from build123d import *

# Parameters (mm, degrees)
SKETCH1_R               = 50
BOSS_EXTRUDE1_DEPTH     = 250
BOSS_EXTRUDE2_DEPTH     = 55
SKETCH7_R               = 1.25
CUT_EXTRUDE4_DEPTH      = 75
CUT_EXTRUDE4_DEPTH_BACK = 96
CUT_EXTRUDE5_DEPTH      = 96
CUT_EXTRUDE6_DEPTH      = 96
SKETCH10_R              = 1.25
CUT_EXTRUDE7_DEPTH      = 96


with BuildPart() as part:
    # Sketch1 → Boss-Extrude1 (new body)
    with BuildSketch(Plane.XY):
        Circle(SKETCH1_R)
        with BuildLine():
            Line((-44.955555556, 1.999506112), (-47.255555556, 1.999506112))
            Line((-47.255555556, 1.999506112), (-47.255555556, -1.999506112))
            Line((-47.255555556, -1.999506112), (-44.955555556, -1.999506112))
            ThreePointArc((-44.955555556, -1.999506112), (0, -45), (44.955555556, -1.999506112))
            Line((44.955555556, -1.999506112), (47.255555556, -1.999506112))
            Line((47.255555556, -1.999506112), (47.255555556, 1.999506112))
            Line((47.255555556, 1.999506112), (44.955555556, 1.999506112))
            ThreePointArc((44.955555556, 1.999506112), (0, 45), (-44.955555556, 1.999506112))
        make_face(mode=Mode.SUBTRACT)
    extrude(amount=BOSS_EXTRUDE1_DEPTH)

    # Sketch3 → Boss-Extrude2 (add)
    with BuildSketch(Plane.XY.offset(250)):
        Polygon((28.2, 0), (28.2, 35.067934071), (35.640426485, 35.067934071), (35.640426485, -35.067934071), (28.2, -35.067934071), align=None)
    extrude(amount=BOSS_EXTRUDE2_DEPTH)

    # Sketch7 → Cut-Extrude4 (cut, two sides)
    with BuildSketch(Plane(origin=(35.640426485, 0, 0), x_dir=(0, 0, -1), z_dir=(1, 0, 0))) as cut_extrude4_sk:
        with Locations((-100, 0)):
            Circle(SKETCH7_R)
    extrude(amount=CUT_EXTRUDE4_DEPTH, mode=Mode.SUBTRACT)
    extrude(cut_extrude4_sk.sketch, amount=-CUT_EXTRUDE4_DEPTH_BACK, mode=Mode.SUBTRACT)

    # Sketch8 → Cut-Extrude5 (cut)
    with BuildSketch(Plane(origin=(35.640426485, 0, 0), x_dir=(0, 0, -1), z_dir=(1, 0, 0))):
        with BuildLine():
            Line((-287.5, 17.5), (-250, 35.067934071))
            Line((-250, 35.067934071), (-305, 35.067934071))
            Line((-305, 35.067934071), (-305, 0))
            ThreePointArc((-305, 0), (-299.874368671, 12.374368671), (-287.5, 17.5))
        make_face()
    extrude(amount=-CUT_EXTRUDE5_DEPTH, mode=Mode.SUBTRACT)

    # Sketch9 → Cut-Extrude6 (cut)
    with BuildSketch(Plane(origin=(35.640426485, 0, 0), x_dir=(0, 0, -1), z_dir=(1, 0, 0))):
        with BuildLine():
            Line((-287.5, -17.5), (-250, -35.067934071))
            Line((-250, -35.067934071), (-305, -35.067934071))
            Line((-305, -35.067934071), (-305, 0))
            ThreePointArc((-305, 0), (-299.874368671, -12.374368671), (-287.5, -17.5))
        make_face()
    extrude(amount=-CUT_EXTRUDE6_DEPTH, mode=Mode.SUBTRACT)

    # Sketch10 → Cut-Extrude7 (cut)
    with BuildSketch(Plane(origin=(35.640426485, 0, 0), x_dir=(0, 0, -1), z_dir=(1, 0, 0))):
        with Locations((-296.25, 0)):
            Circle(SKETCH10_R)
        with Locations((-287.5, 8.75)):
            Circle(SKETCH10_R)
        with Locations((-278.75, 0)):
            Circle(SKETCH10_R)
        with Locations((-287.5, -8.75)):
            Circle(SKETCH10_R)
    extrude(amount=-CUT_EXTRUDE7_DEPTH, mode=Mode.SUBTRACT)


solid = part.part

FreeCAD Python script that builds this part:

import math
import FreeCAD as App
import Part
import Sketcher

doc = App.newDocument("Part")
params = doc.addObject("Spreadsheet::Sheet", "Params")
for row, (alias, value) in enumerate([
    ("sketch1_diameter", "100 mm"),
    ("sketch1_radius", "45 mm"),
    ("sketch1_width", "2.3 mm"),
    ("pad1_length", "250 mm"),
    ("pad2_length", "55 mm"),
    ("sketch3_diameter", "2.5 mm"),
    ("sketch4_radius", "17.5 mm"),
    ("sketch4_height", "55 mm"),
    ("pocket2_length", "96 mm"),
    ("sketch5_radius", "17.5 mm"),
    ("sketch5_height", "55 mm"),
    ("pocket3_length", "96 mm"),
    ("sketch6_diameter", "2.5 mm"),
    ("pocket4_length", "96 mm"),
], start=1):
    params.set(f"A{row}", alias)
    params.set(f"B{row}", "=" + value)
    params.setAlias(f"B{row}", alias)

body = doc.addObject("PartDesign::Body", "Body")

sketch1 = body.newObject("Sketcher::SketchObject", "Sketch")
sketch1.AttachmentSupport = (doc.getObject("XY_Plane"), [""])
sketch1.MapMode = "FlatFace"
sketch1.addGeometry([
    Part.Circle(App.Vector(0, 0, 0), App.Vector(0, 0, 1), 50),
    Part.LineSegment(App.Vector(-47.3, 2, 0), App.Vector(-45, 2, 0)),
    Part.ArcOfCircle(Part.Circle(App.Vector(0, 0, 0), App.Vector(0, 0, 1), 45), math.radians(3), math.radians(177)),
    Part.LineSegment(App.Vector(45, 2, 0), App.Vector(47.3, 2, 0)),
    Part.LineSegment(App.Vector(47.3, 2, 0), App.Vector(47.3, -2, 0)),
    Part.LineSegment(App.Vector(47.3, -2, 0), App.Vector(45, -2, 0)),
    Part.ArcOfCircle(Part.Circle(App.Vector(0, 0, 0), App.Vector(0, 0, 1), 45), math.radians(-177), math.radians(-3)),
    Part.LineSegment(App.Vector(-45, -2, 0), App.Vector(-47.3, -2, 0)),
    Part.LineSegment(App.Vector(-47.3, -2, 0), App.Vector(-47.3, 2, 0)),
], False)
sketch1.addConstraint([
    Sketcher.Constraint("Coincident", 1, 2, 2, 2),
    Sketcher.Constraint("Coincident", 2, 1, 3, 1),
    Sketcher.Constraint("Coincident", 3, 2, 4, 1),
    Sketcher.Constraint("Coincident", 4, 2, 5, 1),
    Sketcher.Constraint("Coincident", 5, 2, 6, 2),
    Sketcher.Constraint("Coincident", 6, 1, 7, 1),
    Sketcher.Constraint("Coincident", 7, 2, 8, 1),
    Sketcher.Constraint("Coincident", 8, 2, 1, 1),
    Sketcher.Constraint("Horizontal", 1),
    Sketcher.Constraint("Horizontal", 3),
    Sketcher.Constraint("Vertical", 4),
    Sketcher.Constraint("Horizontal", 5),
    Sketcher.Constraint("Horizontal", 7),
    Sketcher.Constraint("Vertical", 8),
    Sketcher.Constraint("Coincident", 0, 3, -1, 1),
    Sketcher.Constraint("Coincident", 2, 3, -1, 1),
    Sketcher.Constraint("Coincident", 6, 3, -1, 1),
    Sketcher.Constraint("Equal", 2, 6),
    Sketcher.Constraint("Symmetric", 3, 2, 7, 2, -1, 1),
    Sketcher.Constraint("Horizontal", 1, 2, 2, 1),
    Sketcher.Constraint("Horizontal", 5, 2, 6, 1),
    Sketcher.Constraint("Diameter", 0, 100.0),
    Sketcher.Constraint("Radius", 2, 45.0),
    Sketcher.Constraint("DistanceX", 1, 1, 1, 2, 2.3),
    Sketcher.Constraint("DistanceY", 4, 2, 4, 1, 3.999012),
])
sketch1.setExpression("Constraints[21]", "Params.sketch1_diameter")
sketch1.setExpression("Constraints[22]", "Params.sketch1_radius")
sketch1.setExpression("Constraints[23]", "Params.sketch1_width")
pad1 = body.newObject("PartDesign::Pad", "Pad")
pad1.Profile = sketch1
pad1.setExpression("Length", "Params.pad1_length")

sketch2 = body.newObject("Sketcher::SketchObject", "Sketch001")
sketch2.AttachmentSupport = (doc.getObject("XY_Plane"), [""])
sketch2.MapMode = "FlatFace"
sketch2.AttachmentOffset = App.Placement(App.Vector(0, 0, 250), App.Rotation())
sketch2.addGeometry([
    Part.LineSegment(App.Vector(28, 35, 0), App.Vector(28, -35, 0)),
    Part.LineSegment(App.Vector(28, -35, 0), App.Vector(36, -35, 0)),
    Part.LineSegment(App.Vector(36, -35, 0), App.Vector(36, 35, 0)),
    Part.LineSegment(App.Vector(36, 35, 0), App.Vector(28, 35, 0)),
], False)
sketch2.addConstraint([
    Sketcher.Constraint("Coincident", 0, 2, 1, 1),
    Sketcher.Constraint("Coincident", 1, 2, 2, 1),
    Sketcher.Constraint("Coincident", 2, 2, 3, 1),
    Sketcher.Constraint("Coincident", 3, 2, 0, 1),
    Sketcher.Constraint("Vertical", 0),
    Sketcher.Constraint("Horizontal", 1),
    Sketcher.Constraint("Vertical", 2),
    Sketcher.Constraint("Horizontal", 3),
    Sketcher.Constraint("DistanceX", -1, 1, 0, 2, 28.2),
    Sketcher.Constraint("DistanceY", 0, 2, 0, 1, 70.135868),
    Sketcher.Constraint("DistanceX", 1, 1, 1, 2, 7.440426),
    Sketcher.Constraint("DistanceY", 0, 2, -1, 1, 35.067934),
])
pad2 = body.newObject("PartDesign::Pad", "Pad001")
pad2.Profile = sketch2
pad2.setExpression("Length", "Params.pad2_length")

sketch3 = body.newObject("Sketcher::SketchObject", "Sketch002")
sketch3.AttachmentSupport = (doc.getObject("YZ_Plane"), [""])
sketch3.MapMode = "FlatFace"
sketch3.AttachmentOffset = App.Placement(App.Vector(0, 0, 35.640426), App.Rotation())
sketch3.addGeometry(Part.Circle(App.Vector(0, 100, 0), App.Vector(0, 0, 1), 1.2), False)
sketch3.addConstraint([
    Sketcher.Constraint("PointOnObject", 0, 3, -2),
    Sketcher.Constraint("Diameter", 0, 2.5),
    Sketcher.Constraint("DistanceY", -1, 1, 0, 3, 100.0),
])
sketch3.setExpression("Constraints[1]", "Params.sketch3_diameter")
pocket1 = body.newObject("PartDesign::Pocket", "Pocket")
pocket1.Profile = sketch3
pocket1.Type = "ThroughAll"
pocket1.Midplane = True

sketch4 = body.newObject("Sketcher::SketchObject", "Sketch003")
sketch4.AttachmentSupport = (doc.getObject("YZ_Plane"), [""])
sketch4.MapMode = "FlatFace"
sketch4.AttachmentOffset = App.Placement(App.Vector(0, 0, 35.640426), App.Rotation())
sketch4.addGeometry([
    Part.LineSegment(App.Vector(18, 288, 0), App.Vector(35, 250, 0)),
    Part.LineSegment(App.Vector(35, 250, 0), App.Vector(35, 305, 0)),
    Part.LineSegment(App.Vector(35, 305, 0), App.Vector(0, 305, 0)),
    Part.ArcOfCircle(Part.Circle(App.Vector(0, 288, 0), App.Vector(0, 0, 1), 17), math.radians(0), math.radians(90)),
], False)
sketch4.addConstraint([
    Sketcher.Constraint("Coincident", 0, 2, 1, 1),
    Sketcher.Constraint("Coincident", 1, 2, 2, 1),
    Sketcher.Constraint("Tangent", 2, 2, 3, 2),
    Sketcher.Constraint("Coincident", 3, 1, 0, 1),
    Sketcher.Constraint("Vertical", 1),
    Sketcher.Constraint("Horizontal", 2),
    Sketcher.Constraint("PointOnObject", 3, 3, -2),
    Sketcher.Constraint("Radius", 3, 17.5),
    Sketcher.Constraint("DistanceY", 1, 1, 1, 2, 55.0),
    Sketcher.Constraint("DistanceY", -1, 1, 0, 2, 250.0),
    Sketcher.Constraint("DistanceY", -1, 1, 3, 1, 287.5),
    Sketcher.Constraint("DistanceX", 2, 2, 2, 1, 35.067934),
])
sketch4.setExpression("Constraints[7]", "Params.sketch4_radius")
sketch4.setExpression("Constraints[8]", "Params.sketch4_height")
pocket2 = body.newObject("PartDesign::Pocket", "Pocket001")
pocket2.Profile = sketch4
pocket2.setExpression("Length", "Params.pocket2_length")

sketch5 = body.newObject("Sketcher::SketchObject", "Sketch004")
sketch5.AttachmentSupport = (doc.getObject("YZ_Plane"), [""])
sketch5.MapMode = "FlatFace"
sketch5.AttachmentOffset = App.Placement(App.Vector(0, 0, 35.640426), App.Rotation())
sketch5.addGeometry([
    Part.LineSegment(App.Vector(-35, 250, 0), App.Vector(-18, 288, 0)),
    Part.ArcOfCircle(Part.Circle(App.Vector(0, 288, 0), App.Vector(0, 0, 1), 17), math.radians(90), math.radians(180)),
    Part.LineSegment(App.Vector(0, 305, 0), App.Vector(-35, 305, 0)),
    Part.LineSegment(App.Vector(-35, 305, 0), App.Vector(-35, 250, 0)),
], False)
sketch5.addConstraint([
    Sketcher.Constraint("Coincident", 0, 2, 1, 2),
    Sketcher.Constraint("Tangent", 1, 1, 2, 1),
    Sketcher.Constraint("Coincident", 2, 2, 3, 1),
    Sketcher.Constraint("Coincident", 3, 2, 0, 1),
    Sketcher.Constraint("Horizontal", 2),
    Sketcher.Constraint("Vertical", 3),
    Sketcher.Constraint("PointOnObject", 1, 3, -2),
    Sketcher.Constraint("Horizontal", 1, 3, 0, 2),
    Sketcher.Constraint("Radius", 1, 17.5),
    Sketcher.Constraint("DistanceY", 3, 2, 3, 1, 55.0),
    Sketcher.Constraint("DistanceY", -1, 1, 1, 1, 305.0),
    Sketcher.Constraint("DistanceX", 2, 2, 2, 1, 35.067934),
])
sketch5.setExpression("Constraints[8]", "Params.sketch5_radius")
sketch5.setExpression("Constraints[9]", "Params.sketch5_height")
pocket3 = body.newObject("PartDesign::Pocket", "Pocket002")
pocket3.Profile = sketch5
pocket3.setExpression("Length", "Params.pocket3_length")

sketch6 = body.newObject("Sketcher::SketchObject", "Sketch005")
sketch6.AttachmentSupport = (doc.getObject("YZ_Plane"), [""])
sketch6.MapMode = "FlatFace"
sketch6.AttachmentOffset = App.Placement(App.Vector(0, 0, 35.640426), App.Rotation())
sketch6.addGeometry([
    Part.Circle(App.Vector(0, 296.2, 0), App.Vector(0, 0, 1), 1.2),
    Part.Circle(App.Vector(8.8, 287.5, 0), App.Vector(0, 0, 1), 1.2),
    Part.Circle(App.Vector(0, 278.8, 0), App.Vector(0, 0, 1), 1.2),
    Part.Circle(App.Vector(-8.8, 287.5, 0), App.Vector(0, 0, 1), 1.2),
], False)
sketch6.addConstraint([
    Sketcher.Constraint("Equal", 0, 1),
    Sketcher.Constraint("Equal", 1, 2),
    Sketcher.Constraint("Equal", 2, 3),
    Sketcher.Constraint("Symmetric", 1, 3, 3, 3, -2),
    Sketcher.Constraint("PointOnObject", 0, 3, -2),
    Sketcher.Constraint("PointOnObject", 2, 3, -2),
    Sketcher.Constraint("Diameter", 0, 2.5),
    Sketcher.Constraint("DistanceY", -1, 1, 1, 3, 287.5),
    Sketcher.Constraint("DistanceY", 2, 3, 0, 3, 17.5),
    Sketcher.Constraint("DistanceX", 3, 3, 1, 3, 17.5),
    Sketcher.Constraint("DistanceY", -1, 1, 0, 3, 296.25),
])
sketch6.setExpression("Constraints[6]", "Params.sketch6_diameter")
pocket4 = body.newObject("PartDesign::Pocket", "Pocket003")
pocket4.Profile = sketch6
pocket4.setExpression("Length", "Params.pocket4_length")

doc.recompute()
